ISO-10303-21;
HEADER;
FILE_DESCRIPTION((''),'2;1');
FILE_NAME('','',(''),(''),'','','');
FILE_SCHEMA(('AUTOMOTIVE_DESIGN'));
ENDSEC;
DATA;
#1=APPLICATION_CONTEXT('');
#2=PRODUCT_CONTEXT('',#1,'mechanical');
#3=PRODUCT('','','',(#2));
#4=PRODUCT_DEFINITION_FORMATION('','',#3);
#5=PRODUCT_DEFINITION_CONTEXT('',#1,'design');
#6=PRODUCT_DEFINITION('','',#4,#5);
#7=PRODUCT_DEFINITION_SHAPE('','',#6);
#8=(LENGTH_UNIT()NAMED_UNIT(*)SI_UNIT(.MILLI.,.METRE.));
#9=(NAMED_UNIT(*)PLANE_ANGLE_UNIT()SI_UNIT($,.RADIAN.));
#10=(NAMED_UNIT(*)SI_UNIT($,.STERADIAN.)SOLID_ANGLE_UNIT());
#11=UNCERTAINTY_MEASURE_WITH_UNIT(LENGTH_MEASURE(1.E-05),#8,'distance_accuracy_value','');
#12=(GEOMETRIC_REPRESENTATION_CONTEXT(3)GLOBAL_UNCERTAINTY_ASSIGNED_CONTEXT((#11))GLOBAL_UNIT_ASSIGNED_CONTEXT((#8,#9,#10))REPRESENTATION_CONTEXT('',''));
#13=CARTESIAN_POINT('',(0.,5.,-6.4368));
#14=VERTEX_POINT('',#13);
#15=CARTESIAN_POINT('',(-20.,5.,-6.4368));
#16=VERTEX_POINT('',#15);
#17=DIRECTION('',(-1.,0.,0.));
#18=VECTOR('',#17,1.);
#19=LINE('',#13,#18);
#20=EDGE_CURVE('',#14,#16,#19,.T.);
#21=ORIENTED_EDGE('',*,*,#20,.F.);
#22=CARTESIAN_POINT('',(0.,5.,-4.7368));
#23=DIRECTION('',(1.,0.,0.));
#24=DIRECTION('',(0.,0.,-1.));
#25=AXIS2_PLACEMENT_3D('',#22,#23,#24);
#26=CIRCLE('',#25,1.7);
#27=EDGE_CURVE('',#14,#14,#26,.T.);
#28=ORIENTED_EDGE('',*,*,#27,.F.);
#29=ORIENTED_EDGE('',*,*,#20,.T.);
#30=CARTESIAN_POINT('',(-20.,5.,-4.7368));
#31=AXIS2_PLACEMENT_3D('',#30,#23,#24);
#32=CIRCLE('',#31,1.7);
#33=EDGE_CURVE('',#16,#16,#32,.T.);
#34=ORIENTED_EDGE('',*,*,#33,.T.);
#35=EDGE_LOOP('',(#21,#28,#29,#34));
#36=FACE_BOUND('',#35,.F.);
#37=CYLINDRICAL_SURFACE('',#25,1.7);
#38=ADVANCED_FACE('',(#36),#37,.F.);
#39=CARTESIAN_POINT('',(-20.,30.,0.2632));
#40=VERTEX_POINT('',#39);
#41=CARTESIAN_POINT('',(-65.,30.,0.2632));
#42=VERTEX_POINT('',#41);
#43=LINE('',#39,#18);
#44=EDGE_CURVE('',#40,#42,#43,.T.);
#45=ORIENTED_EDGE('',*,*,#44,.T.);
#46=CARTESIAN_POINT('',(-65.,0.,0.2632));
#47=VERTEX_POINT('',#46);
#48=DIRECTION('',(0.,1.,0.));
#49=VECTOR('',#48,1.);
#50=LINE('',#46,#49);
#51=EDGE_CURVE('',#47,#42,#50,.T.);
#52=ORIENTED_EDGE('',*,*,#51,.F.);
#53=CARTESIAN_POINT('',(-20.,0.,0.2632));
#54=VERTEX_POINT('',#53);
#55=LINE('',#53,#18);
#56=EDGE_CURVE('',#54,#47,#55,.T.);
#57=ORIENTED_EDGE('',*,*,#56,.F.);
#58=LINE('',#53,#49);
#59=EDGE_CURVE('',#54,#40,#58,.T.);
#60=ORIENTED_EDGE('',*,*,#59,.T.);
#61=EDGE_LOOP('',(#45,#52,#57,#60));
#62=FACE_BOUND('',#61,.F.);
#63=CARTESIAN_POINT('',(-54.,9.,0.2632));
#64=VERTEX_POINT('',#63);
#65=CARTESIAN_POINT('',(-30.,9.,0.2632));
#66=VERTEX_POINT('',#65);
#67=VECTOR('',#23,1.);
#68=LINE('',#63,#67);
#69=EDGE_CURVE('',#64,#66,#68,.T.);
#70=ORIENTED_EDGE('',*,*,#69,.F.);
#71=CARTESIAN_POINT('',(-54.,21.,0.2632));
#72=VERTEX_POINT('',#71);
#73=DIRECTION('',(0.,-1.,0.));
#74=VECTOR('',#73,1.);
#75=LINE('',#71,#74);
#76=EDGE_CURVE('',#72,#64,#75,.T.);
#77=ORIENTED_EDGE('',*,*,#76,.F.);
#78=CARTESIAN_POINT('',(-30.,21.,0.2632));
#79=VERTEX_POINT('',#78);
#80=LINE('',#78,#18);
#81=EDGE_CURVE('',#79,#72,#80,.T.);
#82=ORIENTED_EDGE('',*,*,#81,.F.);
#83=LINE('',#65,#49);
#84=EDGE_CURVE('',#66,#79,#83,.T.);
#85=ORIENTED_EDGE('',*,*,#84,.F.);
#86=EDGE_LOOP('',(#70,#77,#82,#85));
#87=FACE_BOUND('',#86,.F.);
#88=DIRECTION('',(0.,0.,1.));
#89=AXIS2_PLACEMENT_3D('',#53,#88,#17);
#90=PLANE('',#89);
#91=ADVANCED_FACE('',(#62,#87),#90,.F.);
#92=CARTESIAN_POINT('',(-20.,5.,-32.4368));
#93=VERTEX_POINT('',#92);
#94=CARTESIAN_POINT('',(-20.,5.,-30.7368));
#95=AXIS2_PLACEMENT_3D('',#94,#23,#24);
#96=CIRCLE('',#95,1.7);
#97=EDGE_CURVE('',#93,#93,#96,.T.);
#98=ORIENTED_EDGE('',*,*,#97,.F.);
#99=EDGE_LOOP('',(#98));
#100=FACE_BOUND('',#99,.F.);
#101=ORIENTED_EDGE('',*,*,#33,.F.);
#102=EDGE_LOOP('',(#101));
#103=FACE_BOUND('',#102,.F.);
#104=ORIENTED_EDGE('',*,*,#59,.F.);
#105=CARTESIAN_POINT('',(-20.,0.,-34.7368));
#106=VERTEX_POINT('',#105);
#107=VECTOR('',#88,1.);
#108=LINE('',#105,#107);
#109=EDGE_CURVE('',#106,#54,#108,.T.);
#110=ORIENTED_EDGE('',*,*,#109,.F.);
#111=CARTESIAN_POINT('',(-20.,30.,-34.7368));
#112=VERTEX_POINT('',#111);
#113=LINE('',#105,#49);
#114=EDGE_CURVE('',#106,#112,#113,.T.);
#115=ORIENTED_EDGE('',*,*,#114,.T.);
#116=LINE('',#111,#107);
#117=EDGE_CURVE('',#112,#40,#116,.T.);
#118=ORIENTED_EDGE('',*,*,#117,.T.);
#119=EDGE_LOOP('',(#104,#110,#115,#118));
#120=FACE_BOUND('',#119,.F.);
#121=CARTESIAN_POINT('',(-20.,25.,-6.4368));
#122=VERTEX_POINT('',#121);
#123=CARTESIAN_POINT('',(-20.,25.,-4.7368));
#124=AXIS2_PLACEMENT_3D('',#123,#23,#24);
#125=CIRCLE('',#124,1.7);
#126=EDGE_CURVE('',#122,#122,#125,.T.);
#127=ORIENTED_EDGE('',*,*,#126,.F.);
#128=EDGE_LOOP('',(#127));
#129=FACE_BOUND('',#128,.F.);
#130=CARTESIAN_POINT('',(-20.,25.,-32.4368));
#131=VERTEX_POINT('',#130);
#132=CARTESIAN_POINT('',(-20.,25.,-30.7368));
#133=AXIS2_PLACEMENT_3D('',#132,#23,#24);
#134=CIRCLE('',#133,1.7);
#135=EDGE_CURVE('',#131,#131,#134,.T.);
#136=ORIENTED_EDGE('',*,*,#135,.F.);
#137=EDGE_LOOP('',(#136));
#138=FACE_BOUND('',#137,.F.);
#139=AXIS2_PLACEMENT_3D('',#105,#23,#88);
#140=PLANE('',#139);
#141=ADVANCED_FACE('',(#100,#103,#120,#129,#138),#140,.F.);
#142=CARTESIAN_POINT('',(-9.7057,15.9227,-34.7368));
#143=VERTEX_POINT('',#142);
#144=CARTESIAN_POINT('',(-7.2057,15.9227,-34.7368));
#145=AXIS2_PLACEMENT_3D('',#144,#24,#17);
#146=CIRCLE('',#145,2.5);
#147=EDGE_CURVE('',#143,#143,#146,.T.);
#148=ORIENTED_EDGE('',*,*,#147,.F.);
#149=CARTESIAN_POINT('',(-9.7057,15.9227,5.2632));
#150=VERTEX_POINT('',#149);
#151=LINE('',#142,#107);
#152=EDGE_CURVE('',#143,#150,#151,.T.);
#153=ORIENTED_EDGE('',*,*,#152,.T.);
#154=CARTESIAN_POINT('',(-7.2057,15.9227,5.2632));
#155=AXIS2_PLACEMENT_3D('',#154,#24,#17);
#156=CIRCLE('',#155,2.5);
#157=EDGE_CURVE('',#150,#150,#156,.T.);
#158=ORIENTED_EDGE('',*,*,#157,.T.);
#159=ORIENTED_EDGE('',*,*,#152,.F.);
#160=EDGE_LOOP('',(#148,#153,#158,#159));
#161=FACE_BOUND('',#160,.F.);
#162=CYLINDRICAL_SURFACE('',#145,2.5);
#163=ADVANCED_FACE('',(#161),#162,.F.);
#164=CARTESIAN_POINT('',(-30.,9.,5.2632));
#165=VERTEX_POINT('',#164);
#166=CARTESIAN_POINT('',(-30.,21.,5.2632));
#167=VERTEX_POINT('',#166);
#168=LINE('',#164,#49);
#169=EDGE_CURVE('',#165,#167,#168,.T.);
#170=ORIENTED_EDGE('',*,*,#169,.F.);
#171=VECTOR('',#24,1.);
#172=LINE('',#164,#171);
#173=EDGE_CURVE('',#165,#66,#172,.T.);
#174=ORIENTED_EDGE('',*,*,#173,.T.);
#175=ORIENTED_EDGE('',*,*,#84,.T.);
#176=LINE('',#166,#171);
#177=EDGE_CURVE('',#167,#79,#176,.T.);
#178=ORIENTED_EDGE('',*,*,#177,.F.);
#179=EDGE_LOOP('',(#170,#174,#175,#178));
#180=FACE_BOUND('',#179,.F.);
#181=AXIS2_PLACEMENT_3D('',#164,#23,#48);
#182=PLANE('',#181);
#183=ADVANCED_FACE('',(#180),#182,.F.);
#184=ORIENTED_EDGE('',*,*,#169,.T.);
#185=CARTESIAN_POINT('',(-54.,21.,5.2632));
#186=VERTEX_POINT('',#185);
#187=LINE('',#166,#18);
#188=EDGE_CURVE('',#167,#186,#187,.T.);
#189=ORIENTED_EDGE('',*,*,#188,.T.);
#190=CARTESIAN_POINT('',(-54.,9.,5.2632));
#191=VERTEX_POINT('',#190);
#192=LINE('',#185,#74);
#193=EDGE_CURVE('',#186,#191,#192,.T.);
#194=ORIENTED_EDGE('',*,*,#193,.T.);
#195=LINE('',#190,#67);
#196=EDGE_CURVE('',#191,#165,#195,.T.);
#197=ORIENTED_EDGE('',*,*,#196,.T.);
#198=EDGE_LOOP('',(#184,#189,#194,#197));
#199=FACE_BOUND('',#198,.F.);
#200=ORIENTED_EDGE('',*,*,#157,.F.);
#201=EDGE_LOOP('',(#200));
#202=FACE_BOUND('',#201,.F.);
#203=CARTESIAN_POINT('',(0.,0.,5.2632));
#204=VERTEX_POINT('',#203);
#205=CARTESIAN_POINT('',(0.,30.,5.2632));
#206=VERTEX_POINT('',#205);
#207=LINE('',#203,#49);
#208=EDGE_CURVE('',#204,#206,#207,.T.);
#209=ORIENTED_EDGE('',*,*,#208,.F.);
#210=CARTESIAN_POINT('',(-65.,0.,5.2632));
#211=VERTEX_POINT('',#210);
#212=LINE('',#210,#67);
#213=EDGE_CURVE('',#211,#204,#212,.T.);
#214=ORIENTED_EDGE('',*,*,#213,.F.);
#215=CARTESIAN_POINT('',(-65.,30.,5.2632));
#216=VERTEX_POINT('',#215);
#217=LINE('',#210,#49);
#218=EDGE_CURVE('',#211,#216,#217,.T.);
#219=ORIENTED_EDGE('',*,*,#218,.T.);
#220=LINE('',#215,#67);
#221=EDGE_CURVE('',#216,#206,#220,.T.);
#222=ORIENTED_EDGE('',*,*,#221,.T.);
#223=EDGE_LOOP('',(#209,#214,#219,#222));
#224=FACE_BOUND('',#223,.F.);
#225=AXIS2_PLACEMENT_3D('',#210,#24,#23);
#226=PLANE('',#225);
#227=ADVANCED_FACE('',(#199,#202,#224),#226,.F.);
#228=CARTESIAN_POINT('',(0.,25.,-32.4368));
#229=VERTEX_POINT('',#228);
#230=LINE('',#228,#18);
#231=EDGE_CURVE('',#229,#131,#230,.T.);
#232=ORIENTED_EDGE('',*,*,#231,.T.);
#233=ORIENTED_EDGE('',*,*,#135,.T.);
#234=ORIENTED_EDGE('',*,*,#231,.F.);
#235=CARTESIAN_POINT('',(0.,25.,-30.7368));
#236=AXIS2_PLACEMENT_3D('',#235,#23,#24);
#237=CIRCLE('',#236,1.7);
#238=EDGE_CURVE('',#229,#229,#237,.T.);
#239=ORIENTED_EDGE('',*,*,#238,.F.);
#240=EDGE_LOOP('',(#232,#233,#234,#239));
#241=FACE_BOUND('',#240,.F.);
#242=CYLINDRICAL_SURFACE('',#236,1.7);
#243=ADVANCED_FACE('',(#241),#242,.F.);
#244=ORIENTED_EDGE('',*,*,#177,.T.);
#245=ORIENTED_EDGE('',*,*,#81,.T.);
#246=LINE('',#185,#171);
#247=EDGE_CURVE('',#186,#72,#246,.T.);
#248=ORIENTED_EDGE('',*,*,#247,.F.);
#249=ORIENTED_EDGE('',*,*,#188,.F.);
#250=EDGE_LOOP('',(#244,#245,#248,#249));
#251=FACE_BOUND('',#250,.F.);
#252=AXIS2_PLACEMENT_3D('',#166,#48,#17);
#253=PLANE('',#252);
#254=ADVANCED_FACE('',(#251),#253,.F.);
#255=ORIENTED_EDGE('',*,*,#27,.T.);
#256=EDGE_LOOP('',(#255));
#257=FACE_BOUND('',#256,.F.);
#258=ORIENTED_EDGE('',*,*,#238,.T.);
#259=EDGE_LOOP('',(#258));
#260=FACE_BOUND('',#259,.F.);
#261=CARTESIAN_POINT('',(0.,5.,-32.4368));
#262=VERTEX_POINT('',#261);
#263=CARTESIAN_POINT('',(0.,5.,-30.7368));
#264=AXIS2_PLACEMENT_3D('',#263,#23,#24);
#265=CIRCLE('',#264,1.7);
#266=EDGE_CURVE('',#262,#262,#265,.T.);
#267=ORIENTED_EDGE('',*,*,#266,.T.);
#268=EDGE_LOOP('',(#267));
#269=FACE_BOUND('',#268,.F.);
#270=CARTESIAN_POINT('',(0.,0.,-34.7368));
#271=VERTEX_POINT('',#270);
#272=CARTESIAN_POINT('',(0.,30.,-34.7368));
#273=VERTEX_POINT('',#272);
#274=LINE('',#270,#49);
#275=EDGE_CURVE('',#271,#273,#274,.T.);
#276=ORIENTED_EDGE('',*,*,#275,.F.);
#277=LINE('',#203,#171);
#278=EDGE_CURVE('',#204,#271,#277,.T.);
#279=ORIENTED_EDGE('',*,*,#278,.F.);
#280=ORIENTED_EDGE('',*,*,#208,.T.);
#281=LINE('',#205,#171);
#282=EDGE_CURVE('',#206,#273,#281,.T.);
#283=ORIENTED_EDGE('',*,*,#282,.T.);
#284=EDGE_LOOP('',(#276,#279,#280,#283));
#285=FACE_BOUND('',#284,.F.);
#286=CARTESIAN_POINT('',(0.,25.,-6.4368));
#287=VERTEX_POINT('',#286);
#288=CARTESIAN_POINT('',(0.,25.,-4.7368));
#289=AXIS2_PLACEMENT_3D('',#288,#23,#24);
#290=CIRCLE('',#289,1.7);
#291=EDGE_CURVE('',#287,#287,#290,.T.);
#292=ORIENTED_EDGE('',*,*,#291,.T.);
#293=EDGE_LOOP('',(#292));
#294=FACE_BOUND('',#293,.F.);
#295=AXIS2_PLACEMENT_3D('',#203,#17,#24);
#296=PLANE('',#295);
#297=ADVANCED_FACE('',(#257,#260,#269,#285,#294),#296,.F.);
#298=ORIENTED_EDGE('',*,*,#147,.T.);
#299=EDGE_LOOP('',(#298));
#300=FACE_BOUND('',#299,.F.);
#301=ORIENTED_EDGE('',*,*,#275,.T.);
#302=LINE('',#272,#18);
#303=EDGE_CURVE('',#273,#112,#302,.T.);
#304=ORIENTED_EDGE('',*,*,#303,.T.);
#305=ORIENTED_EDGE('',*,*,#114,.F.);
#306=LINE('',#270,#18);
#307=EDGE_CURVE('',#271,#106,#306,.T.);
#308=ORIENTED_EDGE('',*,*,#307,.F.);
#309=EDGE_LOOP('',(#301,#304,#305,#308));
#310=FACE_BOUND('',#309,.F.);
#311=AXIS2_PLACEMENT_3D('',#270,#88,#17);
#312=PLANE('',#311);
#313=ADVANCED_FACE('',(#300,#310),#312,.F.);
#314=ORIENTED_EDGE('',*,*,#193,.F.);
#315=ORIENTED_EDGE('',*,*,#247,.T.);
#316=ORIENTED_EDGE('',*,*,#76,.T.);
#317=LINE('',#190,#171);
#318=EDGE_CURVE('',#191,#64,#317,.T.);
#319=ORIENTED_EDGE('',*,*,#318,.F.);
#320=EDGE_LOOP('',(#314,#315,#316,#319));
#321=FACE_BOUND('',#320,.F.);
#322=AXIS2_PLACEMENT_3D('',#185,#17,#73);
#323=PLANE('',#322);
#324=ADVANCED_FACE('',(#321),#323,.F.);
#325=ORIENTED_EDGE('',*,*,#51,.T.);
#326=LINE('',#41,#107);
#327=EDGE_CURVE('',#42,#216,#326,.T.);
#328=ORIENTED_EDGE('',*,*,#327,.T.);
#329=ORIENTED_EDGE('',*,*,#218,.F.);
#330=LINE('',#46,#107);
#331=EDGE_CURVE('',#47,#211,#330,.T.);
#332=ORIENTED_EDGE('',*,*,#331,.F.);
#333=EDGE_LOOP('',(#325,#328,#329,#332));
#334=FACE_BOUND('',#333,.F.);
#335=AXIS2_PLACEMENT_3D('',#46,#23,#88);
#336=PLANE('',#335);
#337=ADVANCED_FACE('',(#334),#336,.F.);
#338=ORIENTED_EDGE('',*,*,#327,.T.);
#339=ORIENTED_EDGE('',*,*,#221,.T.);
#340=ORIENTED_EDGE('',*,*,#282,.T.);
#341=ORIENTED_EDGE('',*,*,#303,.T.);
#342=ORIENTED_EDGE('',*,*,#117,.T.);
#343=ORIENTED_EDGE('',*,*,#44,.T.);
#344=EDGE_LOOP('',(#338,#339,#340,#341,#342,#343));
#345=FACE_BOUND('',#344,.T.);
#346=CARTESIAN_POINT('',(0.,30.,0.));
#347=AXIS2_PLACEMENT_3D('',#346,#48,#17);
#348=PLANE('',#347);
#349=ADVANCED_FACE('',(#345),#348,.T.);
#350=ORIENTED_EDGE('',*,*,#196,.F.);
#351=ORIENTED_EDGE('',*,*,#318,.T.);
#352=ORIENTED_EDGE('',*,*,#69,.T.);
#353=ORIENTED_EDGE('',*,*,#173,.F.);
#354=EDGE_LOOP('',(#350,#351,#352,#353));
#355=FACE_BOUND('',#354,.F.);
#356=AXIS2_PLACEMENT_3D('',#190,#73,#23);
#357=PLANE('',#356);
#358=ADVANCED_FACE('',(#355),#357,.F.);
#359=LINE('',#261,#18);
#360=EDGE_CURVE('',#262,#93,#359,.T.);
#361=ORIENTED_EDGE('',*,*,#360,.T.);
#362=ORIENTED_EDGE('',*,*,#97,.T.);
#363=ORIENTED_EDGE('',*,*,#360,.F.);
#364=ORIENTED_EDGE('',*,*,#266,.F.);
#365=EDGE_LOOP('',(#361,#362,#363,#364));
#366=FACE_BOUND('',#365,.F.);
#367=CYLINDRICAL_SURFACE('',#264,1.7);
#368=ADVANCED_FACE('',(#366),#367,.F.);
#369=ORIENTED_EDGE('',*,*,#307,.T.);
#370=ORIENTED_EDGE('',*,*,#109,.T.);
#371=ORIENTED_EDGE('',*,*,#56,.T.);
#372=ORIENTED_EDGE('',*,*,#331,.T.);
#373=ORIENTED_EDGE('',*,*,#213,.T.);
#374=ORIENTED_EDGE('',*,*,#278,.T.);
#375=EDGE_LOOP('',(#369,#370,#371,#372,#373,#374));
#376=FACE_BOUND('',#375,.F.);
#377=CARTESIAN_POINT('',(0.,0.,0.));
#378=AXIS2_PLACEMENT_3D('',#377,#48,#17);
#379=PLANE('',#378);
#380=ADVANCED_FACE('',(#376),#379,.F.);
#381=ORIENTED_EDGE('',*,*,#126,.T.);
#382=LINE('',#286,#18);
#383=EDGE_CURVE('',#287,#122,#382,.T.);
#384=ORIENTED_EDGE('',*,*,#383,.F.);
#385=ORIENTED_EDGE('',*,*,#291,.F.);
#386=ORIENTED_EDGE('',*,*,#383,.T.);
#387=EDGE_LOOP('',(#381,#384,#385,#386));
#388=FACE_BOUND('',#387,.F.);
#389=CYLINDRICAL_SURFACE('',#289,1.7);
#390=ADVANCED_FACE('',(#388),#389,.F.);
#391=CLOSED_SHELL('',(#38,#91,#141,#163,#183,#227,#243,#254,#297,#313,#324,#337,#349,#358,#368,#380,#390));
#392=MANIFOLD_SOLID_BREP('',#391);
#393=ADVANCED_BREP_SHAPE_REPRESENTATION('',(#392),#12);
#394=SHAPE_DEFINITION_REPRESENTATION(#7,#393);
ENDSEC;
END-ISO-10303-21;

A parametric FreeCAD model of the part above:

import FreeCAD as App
import Part
import Sketcher
from FreeCAD import Vector


def add_polygon(sketch, points):
    """Adds a closed chain of lines whose ends are joined by coincident constraints."""
    first, n = sketch.GeometryCount, len(points)
    for a, b in zip(points, points[1:] + points[:1]):
        sketch.addGeometry(Part.LineSegment(App.Vector(*a, 0), App.Vector(*b, 0)), False)
    for i in range(n):
        sketch.addConstraint(Sketcher.Constraint("Coincident", first + i, 2, first + (i + 1) % n, 1))

doc = App.newDocument("Part")
params = doc.addObject("Spreadsheet::Sheet", "Params")
for row, (alias, value) in enumerate([
    ("sketch1_width", "65 mm"),
    ("sketch1_width2", "20 mm"),
    ("sketch1_height", "5 mm"),
    ("sketch1_height2", "40 mm"),
    ("pad1_length", "30 mm"),
    ("sketch2_width", "24 mm"),
    ("sketch2_height", "12 mm"),
    ("pocket1_length", "5 mm"),
    ("sketch3_diameter", "3.4 mm"),
    ("pocket2_length", "20 mm"),
    ("sketch4_diameter", "5 mm"),
], start=1):
    params.set(f"A{row}", alias)
    params.set(f"B{row}", "=" + value)
    params.setAlias(f"B{row}", alias)

body = doc.addObject("PartDesign::Body", "Body")

sketch1 = body.newObject("Sketcher::SketchObject", "Sketch")
sketch1.AttachmentSupport = (doc.getObject("XZ_Plane"), [""])
sketch1.MapMode = "FlatFace"
add_polygon(sketch1, [(-65, 0), (-65, 5), (0, 5), (0, -35), (-20, -35), (-20, 0)])
sketch1.addConstraint([
    Sketcher.Constraint("Vertical", 0),
    Sketcher.Constraint("Horizontal", 1),
    Sketcher.Constraint("Vertical", 2),
    Sketcher.Constraint("Horizontal", 3),
    Sketcher.Constraint("Vertical", 4),
    Sketcher.Constraint("Horizontal", 5),
    Sketcher.Constraint("PointOnObject", 1, 2, -2),
    Sketcher.Constraint("DistanceX", 1, 1, 1, 2, 65.0),
    Sketcher.Constraint("DistanceX", 3, 2, 3, 1, 20.0),
    Sketcher.Constraint("DistanceY", 0, 1, 0, 2, 5.0),
    Sketcher.Constraint("DistanceY", 2, 2, 2, 1, 40.0),
    Sketcher.Constraint("DistanceY", -1, 1, 0, 2, 5.2632),
])
sketch1.setExpression("Constraints[13]", "Params.sketch1_width")
sketch1.setExpression("Constraints[14]", "Params.sketch1_width2")
sketch1.setExpression("Constraints[15]", "Params.sketch1_height")
sketch1.setExpression("Constraints[16]", "Params.sketch1_height2")
pad1 = body.newObject("PartDesign::Pad", "Pad")
pad1.Profile = sketch1
pad1.setExpression("Length", "Params.pad1_length")
pad1.Reversed = True

sketch2 = body.newObject("Sketcher::SketchObject", "Sketch001")
sketch2.AttachmentSupport = (doc.getObject("XY_Plane"), [""])
sketch2.MapMode = "FlatFace"
sketch2.AttachmentOffset = App.Placement(Vector(0, 0, 5.2632), App.Rotation())
add_polygon(sketch2, [(-54, 21), (-54, 9), (-30, 9), (-30, 21)])
sketch2.addConstraint([
    Sketcher.Constraint("Vertical", 0),
    Sketcher.Constraint("Horizontal", 1),
    Sketcher.Constraint("Vertical", 2),
    Sketcher.Constraint("Horizontal", 3),
    Sketcher.Constraint("DistanceX", 1, 1, 1, 2, 24.0),
    Sketcher.Constraint("DistanceY", 0, 2, 0, 1, 12.0),
    Sketcher.Constraint("DistanceY", -1, 1, 0, 2, 9.0),
    Sketcher.Constraint("DistanceX", 1, 2, -1, 1, 30.0),
])
sketch2.setExpression("Constraints[8]", "Params.sketch2_width")
sketch2.setExpression("Constraints[9]", "Params.sketch2_height")
pocket1 = body.newObject("PartDesign::Pocket", "Pocket")
pocket1.Profile = sketch2
pocket1.setExpression("Length", "Params.pocket1_length")

sketch3 = body.newObject("Sketcher::SketchObject", "Sketch002")
sketch3.AttachmentSupport = (doc.getObject("YZ_Plane"), [""])
sketch3.MapMode = "FlatFace"
sketch3.addGeometry([
    Part.Circle(Vector(5, -4.7, 0), Vector(0, 0, 1), 1.7),
    Part.Circle(Vector(5, -30.7, 0), Vector(0, 0, 1), 1.7),
    Part.Circle(Vector(25, -4.7, 0), Vector(0, 0, 1), 1.7),
    Part.Circle(Vector(25, -30.7, 0), Vector(0, 0, 1), 1.7),
], False)
sketch3.addConstraint([
    Sketcher.Constraint("Equal", 0, 1),
    Sketcher.Constraint("Equal", 1, 2),
    Sketcher.Constraint("Equal", 2, 3),
    Sketcher.Constraint("Horizontal", 0, 3, 2, 3),
    Sketcher.Constraint("Horizontal", 1, 3, 3, 3),
    Sketcher.Constraint("Vertical", 0, 3, 1, 3),
    Sketcher.Constraint("Vertical", 2, 3, 3, 3),
    Sketcher.Constraint("Diameter", 0, 3.4),
    Sketcher.Constraint("DistanceX", -1, 1, 0, 3, 5.0),
    Sketcher.Constraint("DistanceX", 0, 3, 2, 3, 20.0),
    Sketcher.Constraint("DistanceY", 1, 3, 0, 3, 26.0),
    Sketcher.Constraint("DistanceY", 0, 3, -1, 1, 4.7368),
])
sketch3.setExpression("Constraints[7]", "Params.sketch3_diameter")
pocket2 = body.newObject("PartDesign::Pocket", "Pocket001")
pocket2.Profile = sketch3
pocket2.setExpression("Length", "Params.pocket2_length")

sketch4 = body.newObject("Sketcher::SketchObject", "Sketch003")
sketch4.AttachmentSupport = (doc.getObject("XY_Plane"), [""])
sketch4.MapMode = "FlatFace"
sketch4.AttachmentOffset = App.Placement(Vector(0, 0, -34.7368), App.Rotation())
sketch4.addGeometry(Part.Circle(Vector(-7.2, 15.9, 0), Vector(0, 0, 1), 2.5), False)
sketch4.addConstraint([
    Sketcher.Constraint("Diameter", 0, 5.0),
    Sketcher.Constraint("DistanceX", 0, 3, -1, 1, 7.2057),
    Sketcher.Constraint("DistanceY", -1, 1, 0, 3, 15.9227),
])
sketch4.setExpression("Constraints[0]", "Params.sketch4_diameter")
pocket3 = body.newObject("PartDesign::Pocket", "Pocket002")
pocket3.Profile = sketch4
pocket3.Type = "ThroughAll"
pocket3.Reversed = True

doc.recompute()
